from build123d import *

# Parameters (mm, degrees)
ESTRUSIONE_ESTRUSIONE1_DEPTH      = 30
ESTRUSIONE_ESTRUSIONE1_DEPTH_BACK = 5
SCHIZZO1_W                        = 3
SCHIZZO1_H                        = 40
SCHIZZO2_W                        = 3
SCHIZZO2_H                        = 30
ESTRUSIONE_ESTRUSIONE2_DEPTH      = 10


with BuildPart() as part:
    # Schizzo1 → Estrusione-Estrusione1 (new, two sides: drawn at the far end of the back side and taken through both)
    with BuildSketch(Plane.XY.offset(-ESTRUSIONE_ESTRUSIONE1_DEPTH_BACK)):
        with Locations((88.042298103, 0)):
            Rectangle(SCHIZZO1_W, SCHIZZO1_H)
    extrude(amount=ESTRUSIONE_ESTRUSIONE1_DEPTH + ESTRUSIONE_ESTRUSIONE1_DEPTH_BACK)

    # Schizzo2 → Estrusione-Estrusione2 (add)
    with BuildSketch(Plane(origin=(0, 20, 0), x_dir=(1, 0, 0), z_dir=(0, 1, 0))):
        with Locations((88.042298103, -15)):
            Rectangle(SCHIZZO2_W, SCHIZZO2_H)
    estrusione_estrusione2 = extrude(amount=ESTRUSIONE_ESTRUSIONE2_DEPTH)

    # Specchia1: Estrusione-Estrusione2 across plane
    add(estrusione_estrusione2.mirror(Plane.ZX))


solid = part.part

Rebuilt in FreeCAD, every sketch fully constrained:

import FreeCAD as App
import Part
import Sketcher


def add_polygon(sketch, points):
    """Adds a closed chain of lines whose ends are joined by coincident constraints."""
    first, n = sketch.GeometryCount, len(points)
    for a, b in zip(points, points[1:] + points[:1]):
        sketch.addGeometry(Part.LineSegment(App.Vector(*a, 0), App.Vector(*b, 0)), False)
    for i in range(n):
        sketch.addConstraint(Sketcher.Constraint("Coincident", first + i, 2, first + (i + 1) % n, 1))

doc = App.newDocument("Part")
body = doc.addObject("PartDesign::Body", "Body")

# Sketch on XY plane
sketch1 = body.newObject("Sketcher::SketchObject", "Sketch")
sketch1.AttachmentSupport = (doc.getObject("XY_Plane"), [""])
sketch1.MapMode = "FlatFace"
add_polygon(sketch1, [(86.542298, 20), (86.542298, -20), (89.542298, -20), (89.542298, 20)])  # lines 0-3
sketch1.addConstraint(Sketcher.Constraint("Vertical", 0))
sketch1.addConstraint(Sketcher.Constraint("Horizontal", 1))
sketch1.addConstraint(Sketcher.Constraint("Vertical", 2))
sketch1.addConstraint(Sketcher.Constraint("Horizontal", 3))
sketch1.addConstraint(Sketcher.Constraint("DistanceX", 1, 1, 1, 2, 3.0))
sketch1.addConstraint(Sketcher.Constraint("DistanceY", 0, 2, 0, 1, 40.0))
sketch1.addConstraint(Sketcher.Constraint("DistanceY", 0, 2, -1, 1, 20.0))
sketch1.addConstraint(Sketcher.Constraint("DistanceX", -1, 1, 0, 2, 86.542298))
pad1 = body.newObject("PartDesign::Pad", "Pad")
pad1.Profile = sketch1
pad1.Type = "TwoLengths"
pad1.Length = 30
pad1.Length2 = 5

# Sketch on XZ plane
sketch2 = body.newObject("Sketcher::SketchObject", "Sketch001")
sketch2.AttachmentSupport = (doc.getObject("XZ_Plane"), [""])
sketch2.MapMode = "FlatFace"
sketch2.AttachmentOffset = App.Placement(App.Vector(0, 0, -20), App.Rotation())
add_polygon(sketch2, [(86.542298, 0), (86.542298, 30), (89.542298, 30), (89.542298, 0)])  # lines 0-3
sketch2.addConstraint(Sketcher.Constraint("Vertical", 0))
sketch2.addConstraint(Sketcher.Constraint("Horizontal", 1))
sketch2.addConstraint(Sketcher.Constraint("Vertical", 2))
sketch2.addConstraint(Sketcher.Constraint("Horizontal", 3))
sketch2.addConstraint(Sketcher.Constraint("PointOnObject", 2, 2, -1))
sketch2.addConstraint(Sketcher.Constraint("DistanceX", 1, 1, 1, 2, 3.0))
sketch2.addConstraint(Sketcher.Constraint("DistanceY", 0, 1, 0, 2, 30.0))
sketch2.addConstraint(Sketcher.Constraint("DistanceX", -1, 1, 0, 2, 86.542298))
pad2 = body.newObject("PartDesign::Pad", "Pad001")
pad2.Profile = sketch2
pad2.Length = 10
pad2.Reversed = True
doc.recompute()

mirrored = body.newObject("PartDesign::Mirrored", "Mirrored")
mirrored.Originals = [pad2]
mirrored.MirrorPlane = (doc.getObject("XZ_Plane"), [""])
body.Tip = mirrored

doc.recompute()
